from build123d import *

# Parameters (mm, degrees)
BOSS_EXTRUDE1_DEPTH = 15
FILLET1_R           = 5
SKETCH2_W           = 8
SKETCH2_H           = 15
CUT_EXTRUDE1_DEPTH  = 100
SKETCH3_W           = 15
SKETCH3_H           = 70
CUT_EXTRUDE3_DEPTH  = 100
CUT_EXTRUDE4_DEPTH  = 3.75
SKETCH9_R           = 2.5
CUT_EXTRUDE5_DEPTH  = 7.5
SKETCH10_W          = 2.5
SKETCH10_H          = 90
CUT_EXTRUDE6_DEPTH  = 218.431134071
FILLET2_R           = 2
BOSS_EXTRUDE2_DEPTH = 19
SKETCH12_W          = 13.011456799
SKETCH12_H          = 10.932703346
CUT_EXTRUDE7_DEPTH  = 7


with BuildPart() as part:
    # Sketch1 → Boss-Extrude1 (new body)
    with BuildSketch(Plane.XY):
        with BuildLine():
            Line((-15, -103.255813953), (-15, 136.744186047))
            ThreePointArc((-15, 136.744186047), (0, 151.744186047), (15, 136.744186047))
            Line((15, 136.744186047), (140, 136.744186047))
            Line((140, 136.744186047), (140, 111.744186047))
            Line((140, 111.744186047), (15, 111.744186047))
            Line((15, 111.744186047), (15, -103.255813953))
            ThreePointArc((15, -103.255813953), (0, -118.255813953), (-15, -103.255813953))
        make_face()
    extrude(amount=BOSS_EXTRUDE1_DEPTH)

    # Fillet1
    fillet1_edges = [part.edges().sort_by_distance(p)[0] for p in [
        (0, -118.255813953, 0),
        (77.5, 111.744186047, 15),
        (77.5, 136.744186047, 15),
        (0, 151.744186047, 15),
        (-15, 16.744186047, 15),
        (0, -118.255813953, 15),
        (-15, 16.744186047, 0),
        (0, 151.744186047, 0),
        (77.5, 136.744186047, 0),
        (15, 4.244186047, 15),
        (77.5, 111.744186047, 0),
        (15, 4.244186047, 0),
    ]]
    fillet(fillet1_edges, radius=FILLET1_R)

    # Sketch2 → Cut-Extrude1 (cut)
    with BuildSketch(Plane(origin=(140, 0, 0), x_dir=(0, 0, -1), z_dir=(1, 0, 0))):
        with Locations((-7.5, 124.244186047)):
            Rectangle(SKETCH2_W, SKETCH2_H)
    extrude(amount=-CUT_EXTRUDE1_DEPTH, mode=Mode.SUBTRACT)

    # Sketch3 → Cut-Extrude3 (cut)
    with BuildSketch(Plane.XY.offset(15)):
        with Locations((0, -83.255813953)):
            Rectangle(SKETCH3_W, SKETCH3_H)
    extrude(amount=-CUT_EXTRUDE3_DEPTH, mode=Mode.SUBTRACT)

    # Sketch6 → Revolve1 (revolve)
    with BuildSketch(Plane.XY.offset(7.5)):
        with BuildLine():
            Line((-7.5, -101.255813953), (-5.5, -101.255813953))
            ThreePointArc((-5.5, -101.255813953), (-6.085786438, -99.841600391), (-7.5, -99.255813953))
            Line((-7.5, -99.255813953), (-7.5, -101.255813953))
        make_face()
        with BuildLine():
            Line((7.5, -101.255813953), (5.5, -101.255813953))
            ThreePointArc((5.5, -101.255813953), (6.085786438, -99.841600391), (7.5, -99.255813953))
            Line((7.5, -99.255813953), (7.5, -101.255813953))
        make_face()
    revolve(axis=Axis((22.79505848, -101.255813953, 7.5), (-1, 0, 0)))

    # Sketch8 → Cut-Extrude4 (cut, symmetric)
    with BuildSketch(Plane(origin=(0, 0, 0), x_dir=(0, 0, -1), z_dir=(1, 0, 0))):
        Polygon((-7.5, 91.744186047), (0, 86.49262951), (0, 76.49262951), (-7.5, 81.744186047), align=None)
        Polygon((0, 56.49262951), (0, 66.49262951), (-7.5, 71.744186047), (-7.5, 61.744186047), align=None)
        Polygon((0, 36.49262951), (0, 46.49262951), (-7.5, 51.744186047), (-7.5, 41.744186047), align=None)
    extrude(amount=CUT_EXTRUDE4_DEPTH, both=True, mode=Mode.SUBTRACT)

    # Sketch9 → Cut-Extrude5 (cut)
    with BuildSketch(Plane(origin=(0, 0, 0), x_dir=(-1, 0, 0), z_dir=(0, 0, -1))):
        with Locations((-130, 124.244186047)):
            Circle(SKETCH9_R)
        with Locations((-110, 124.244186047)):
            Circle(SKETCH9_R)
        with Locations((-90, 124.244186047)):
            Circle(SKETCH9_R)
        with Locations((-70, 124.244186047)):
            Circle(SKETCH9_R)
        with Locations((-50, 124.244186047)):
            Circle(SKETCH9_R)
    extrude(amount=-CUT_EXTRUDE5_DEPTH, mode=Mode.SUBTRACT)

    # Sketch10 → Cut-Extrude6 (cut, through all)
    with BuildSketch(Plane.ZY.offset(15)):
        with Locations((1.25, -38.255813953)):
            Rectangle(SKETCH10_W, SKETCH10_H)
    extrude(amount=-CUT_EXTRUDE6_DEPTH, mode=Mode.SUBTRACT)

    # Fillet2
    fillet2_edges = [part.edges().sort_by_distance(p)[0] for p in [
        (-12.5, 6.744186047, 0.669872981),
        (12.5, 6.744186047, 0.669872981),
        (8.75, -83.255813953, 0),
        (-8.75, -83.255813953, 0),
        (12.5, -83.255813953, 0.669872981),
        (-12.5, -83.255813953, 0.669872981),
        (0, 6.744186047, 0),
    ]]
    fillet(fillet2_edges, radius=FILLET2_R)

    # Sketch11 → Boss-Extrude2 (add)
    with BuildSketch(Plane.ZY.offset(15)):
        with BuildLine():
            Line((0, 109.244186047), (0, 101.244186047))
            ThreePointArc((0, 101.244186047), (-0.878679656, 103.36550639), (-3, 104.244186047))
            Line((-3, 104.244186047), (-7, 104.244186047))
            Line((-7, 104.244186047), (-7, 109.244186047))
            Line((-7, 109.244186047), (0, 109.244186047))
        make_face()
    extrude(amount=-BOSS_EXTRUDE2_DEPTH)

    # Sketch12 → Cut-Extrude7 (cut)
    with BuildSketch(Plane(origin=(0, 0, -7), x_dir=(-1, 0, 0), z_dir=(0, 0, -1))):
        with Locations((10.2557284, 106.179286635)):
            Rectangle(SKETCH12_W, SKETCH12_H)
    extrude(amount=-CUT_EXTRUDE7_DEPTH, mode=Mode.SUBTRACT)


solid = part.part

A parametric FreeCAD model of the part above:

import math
import FreeCAD as App
import Part
import Sketcher

V = App.Vector
Q = App.Units.Quantity


def edges_at(feature, points):
    """Names of the edges that pass closest to the given points."""
    edges = feature.Shape.Edges
    near = lambda p: min(range(len(edges)), key=lambda i: edges[i].distToShape(Part.Vertex(*p))[0])
    return sorted({f"Edge{near(p) + 1}" for p in points})

doc = App.newDocument("Part")
body = doc.addObject("PartDesign::Body", "Body")

sketch1 = body.newObject("Sketcher::SketchObject", "Sketch")
sketch1.AttachmentSupport = (doc.getObject("XY_Plane"), [""])
sketch1.MapMode = "FlatFace"
sketch1.addGeometry([
    Part.LineSegment(V(-15, 137, 0), V(-15, -103, 0)),
    Part.ArcOfCircle(Part.Circle(V(0, -103, 0), V(0, 0, 1), 15), math.radians(180), math.radians(360)),
    Part.LineSegment(V(15, -103, 0), V(15, 112, 0)),
    Part.LineSegment(V(15, 112, 0), V(140, 112, 0)),
    Part.LineSegment(V(140, 112, 0), V(140, 137, 0)),
    Part.LineSegment(V(140, 137, 0), V(15, 137, 0)),
    Part.ArcOfCircle(Part.Circle(V(0, 137, 0), V(0, 0, 1), 15), math.radians(0), math.radians(180)),
], False)
sketch1.addConstraint([
    Sketcher.Constraint("Tangent", 0, 2, 1, 1),
    Sketcher.Constraint("Tangent", 1, 2, 2, 1),
    Sketcher.Constraint("Coincident", 2, 2, 3, 1),
    Sketcher.Constraint("Coincident", 3, 2, 4, 1),
    Sketcher.Constraint("Coincident", 4, 2, 5, 1),
    Sketcher.Constraint("Coincident", 5, 2, 6, 1),
    Sketcher.Constraint("Tangent", 6, 2, 0, 1),
    Sketcher.Constraint("Vertical", 0),
    Sketcher.Constraint("Vertical", 2),
    Sketcher.Constraint("Horizontal", 3),
    Sketcher.Constraint("Vertical", 4),
    Sketcher.Constraint("Horizontal", 5),
    Sketcher.Constraint("Equal", 1, 6),
    Sketcher.Constraint("Symmetric", 5, 2, 6, 2, -2),
    Sketcher.Constraint("Radius", 1, 15.0),
    Sketcher.Constraint("DistanceX", 3, 1, 3, 2, 125.0),
    Sketcher.Constraint("DistanceY", 0, 2, 0, 1, 240.0),
    Sketcher.Constraint("DistanceY", 2, 1, 2, 2, 215.0),
    Sketcher.Constraint("DistanceY", 1, 3, -1, 1, 103.255814),
])
pad1 = body.newObject("PartDesign::Pad", "Pad")
pad1.Profile = sketch1
pad1.Length = 15
doc.recompute()

fillet = body.newObject("PartDesign::Fillet", "Fillet")
fillet.Base = (pad1, edges_at(pad1, [
    (0, -118.256, 0),
    (77.5, 111.744, 15),
    (77.5, 136.744, 15),
    (0, 151.744, 15),
    (-15, 16.744, 15),
    (0, -118.256, 15),
    (-15, 16.744, 0),
    (0, 151.744, 0),
    (77.5, 136.744, 0),
    (15, 4.244, 15),
    (77.5, 111.744, 0),
    (15, 4.244, 0),
]))
fillet.Radius = 5

sketch2 = body.newObject("Sketcher::SketchObject", "Sketch001")
sketch2.AttachmentSupport = (doc.getObject("YZ_Plane"), [""])
sketch2.MapMode = "FlatFace"
sketch2.AttachmentOffset = App.Placement(V(0, 0, 140), App.Rotation())
sketch2.addGeometry([
    Part.LineSegment(V(132, 12, 0), V(117, 12, 0)),
    Part.LineSegment(V(117, 12, 0), V(117, 4, 0)),
    Part.LineSegment(V(117, 4, 0), V(132, 4, 0)),
    Part.LineSegment(V(132, 4, 0), V(132, 12, 0)),
], False)
sketch2.addConstraint([
    Sketcher.Constraint("Coincident", 0, 2, 1, 1),
    Sketcher.Constraint("Coincident", 1, 2, 2, 1),
    Sketcher.Constraint("Coincident", 2, 2, 3, 1),
    Sketcher.Constraint("Coincident", 3, 2, 0, 1),
    Sketcher.Constraint("Horizontal", 0),
    Sketcher.Constraint("Vertical", 1),
    Sketcher.Constraint("Horizontal", 2),
    Sketcher.Constraint("Vertical", 3),
    Sketcher.Constraint("DistanceX", 0, 2, 0, 1, 15.0),
    Sketcher.Constraint("DistanceY", 1, 2, 1, 1, 8.0),
    Sketcher.Constraint("DistanceY", -1, 1, 0, 2, 11.5),
    Sketcher.Constraint("DistanceX", -1, 1, 0, 2, 116.744186),
])
pocket1 = body.newObject("PartDesign::Pocket", "Pocket")
pocket1.Profile = sketch2
pocket1.Length = 100

sketch3 = body.newObject("Sketcher::SketchObject", "Sketch002")
sketch3.AttachmentSupport = (doc.getObject("XY_Plane"), [""])
sketch3.MapMode = "FlatFace"
sketch3.AttachmentOffset = App.Placement(V(0, 0, 15), App.Rotation())
sketch3.addGeometry([
    Part.LineSegment(V(-8, -48, 0), V(-8, -118, 0)),
    Part.LineSegment(V(-8, -118, 0), V(8, -118, 0)),
    Part.LineSegment(V(8, -118, 0), V(8, -48, 0)),
    Part.LineSegment(V(8, -48, 0), V(-8, -48, 0)),
], False)
sketch3.addConstraint([
    Sketcher.Constraint("Coincident", 0, 2, 1, 1),
    Sketcher.Constraint("Coincident", 1, 2, 2, 1),
    Sketcher.Constraint("Coincident", 2, 2, 3, 1),
    Sketcher.Constraint("Coincident", 3, 2, 0, 1),
    Sketcher.Constraint("Vertical", 0),
    Sketcher.Constraint("Horizontal", 1),
    Sketcher.Constraint("Vertical", 2),
    Sketcher.Constraint("Horizontal", 3),
    Sketcher.Constraint("DistanceX", 1, 1, 1, 2, 15.0),
    Sketcher.Constraint("DistanceY", 0, 2, 0, 1, 70.0),
    Sketcher.Constraint("DistanceX", 0, 2, -1, 1, 7.5),
    Sketcher.Constraint("DistanceY", 0, 2, -1, 1, 118.255814),
])
pocket2 = body.newObject("PartDesign::Pocket", "Pocket001")
pocket2.Profile = sketch3
pocket2.Length = 100

sketch4 = body.newObject("Sketcher::SketchObject", "Sketch003")
sketch4.AttachmentSupport = (doc.getObject("XY_Plane"), [""])
sketch4.MapMode = "FlatFace"
sketch4.AttachmentOffset = App.Placement(V(0, 0, 7.5), App.Rotation())
sketch4.addGeometry([
    Part.LineSegment(V(-7.5, -101.3, 0), V(-5.5, -101.3, 0)),
    Part.ArcOfCircle(Part.Circle(V(-7.5, -101.3, 0), V(0, 0, 1), 2), math.radians(0), math.radians(90)),
    Part.LineSegment(V(-7.5, -99.3, 0), V(-7.5, -101.3, 0)),
    Part.LineSegment(V(5.5, -101.3, 0), V(7.5, -101.3, 0)),
    Part.LineSegment(V(7.5, -101.3, 0), V(7.5, -99.3, 0)),
    Part.ArcOfCircle(Part.Circle(V(7.5, -101.3, 0), V(0, 0, 1), 2), math.radians(90), math.radians(180)),
], False)
sketch4.addGeometry(Part.LineSegment(V(7.5, -101.3, 0), V(-7.5, -101.3, 0)), True)
sketch4.addConstraint([
    Sketcher.Constraint("Coincident", 0, 2, 1, 1),
    Sketcher.Constraint("Coincident", 1, 2, 2, 1),
    Sketcher.Constraint("Coincident", 2, 2, 0, 1),
    Sketcher.Constraint("Coincident", 3, 2, 4, 1),
    Sketcher.Constraint("Coincident", 4, 2, 5, 1),
    Sketcher.Constraint("Coincident", 5, 2, 3, 1),
    Sketcher.Constraint("Horizontal", 0),
    Sketcher.Constraint("Vertical", 2),
    Sketcher.Constraint("Horizontal", 3),
    Sketcher.Constraint("Vertical", 4),
    Sketcher.Constraint("Horizontal", 6),
    Sketcher.Constraint("Coincident", 2, 2, 1, 3),
    Sketcher.Constraint("Coincident", 3, 2, 5, 3),
    Sketcher.Constraint("Coincident", 6, 1, 5, 3),
    Sketcher.Constraint("Coincident", 6, 2, 1, 3),
    Sketcher.Constraint("Equal", 1, 5),
    Sketcher.Constraint("Radius", 1, 2.0),
    Sketcher.Constraint("DistanceX", 6, 2, 6, 1, 15.0),
    Sketcher.Constraint("DistanceX", 1, 3, -1, 1, 7.5),
    Sketcher.Constraint("DistanceY", 1, 3, -1, 1, 101.255814),
])
revolution = body.newObject("PartDesign::Revolution", "Revolution")
revolution.Profile = sketch4
revolution.ReferenceAxis = (sketch4, ["Axis0"])
revolution.Angle = 360

sketch5 = body.newObject("Sketcher::SketchObject", "Sketch004")
sketch5.AttachmentSupport = (doc.getObject("YZ_Plane"), [""])
sketch5.MapMode = "FlatFace"
sketch5.addGeometry([
    Part.LineSegment(V(86, 0, 0), V(92, 8, 0)),
    Part.LineSegment(V(92, 8, 0), V(82, 8, 0)),
    Part.LineSegment(V(82, 8, 0), V(76, 0, 0)),
    Part.LineSegment(V(76, 0, 0), V(86, 0, 0)),
    Part.LineSegment(V(56, 0, 0), V(66, 0, 0)),
    Part.LineSegment(V(66, 0, 0), V(72, 8, 0)),
    Part.LineSegment(V(72, 8, 0), V(62, 8, 0)),
    Part.LineSegment(V(62, 8, 0), V(56, 0, 0)),
    Part.LineSegment(V(36, 0, 0), V(46, 0, 0)),
    Part.LineSegment(V(46, 0, 0), V(52, 8, 0)),
    Part.LineSegment(V(52, 8, 0), V(42, 8, 0)),
    Part.LineSegment(V(42, 8, 0), V(36, 0, 0)),
], False)
sketch5.addConstraint([
    Sketcher.Constraint("Coincident", 0, 2, 1, 1),
    Sketcher.Constraint("Coincident", 1, 2, 2, 1),
    Sketcher.Constraint("Coincident", 2, 2, 3, 1),
    Sketcher.Constraint("Coincident", 3, 2, 0, 1),
    Sketcher.Constraint("Coincident", 4, 2, 5, 1),
    Sketcher.Constraint("Coincident", 5, 2, 6, 1),
    Sketcher.Constraint("Coincident", 6, 2, 7, 1),
    Sketcher.Constraint("Coincident", 7, 2, 4, 1),
    Sketcher.Constraint("Coincident", 8, 2, 9, 1),
    Sketcher.Constraint("Coincident", 9, 2, 10, 1),
    Sketcher.Constraint("Coincident", 10, 2, 11, 1),
    Sketcher.Constraint("Coincident", 11, 2, 8, 1),
    Sketcher.Constraint("Horizontal", 1),
    Sketcher.Constraint("Horizontal", 3),
    Sketcher.Constraint("Horizontal", 4),
    Sketcher.Constraint("Horizontal", 6),
    Sketcher.Constraint("Horizontal", 8),
    Sketcher.Constraint("Horizontal", 10),
    Sketcher.Constraint("PointOnObject", 2, 2, -1),
    Sketcher.Constraint("PointOnObject", 4, 2, -1),
    Sketcher.Constraint("PointOnObject", 8, 2, -1),
    Sketcher.Constraint("Parallel", 0, 2),
    Sketcher.Constraint("Parallel", 2, 5),
    Sketcher.Constraint("Parallel", 5, 7),
    Sketcher.Constraint("Parallel", 7, 9),
    Sketcher.Constraint("Parallel", 9, 11),
    Sketcher.Constraint("Horizontal", 1, 2, 5, 2),
    Sketcher.Constraint("Horizontal", 6, 2, 9, 2),
    Sketcher.Constraint("Equal", 3, 4),
    Sketcher.Constraint("Equal", 6, 8),
    Sketcher.Constraint("DistanceX", 1, 2, 1, 1, 10.0),
    Sketcher.Constraint("Angle", 0, Q("55 deg")),
    Sketcher.Constraint("DistanceX", 4, 2, 2, 2, 10.0),
    Sketcher.Constraint("DistanceX", 8, 2, 7, 2, 10.0),
    Sketcher.Constraint("DistanceY", -1, 1, 0, 2, 7.5),
    Sketcher.Constraint("DistanceX", -1, 1, 2, 2, 76.49263),
])
pocket3 = body.newObject("PartDesign::Pocket", "Pocket002")
pocket3.Profile = sketch5
pocket3.Length = 7.5
pocket3.Midplane = True

sketch6 = body.newObject("Sketcher::SketchObject", "Sketch005")
sketch6.AttachmentSupport = (doc.getObject("XY_Plane"), [""])
sketch6.MapMode = "FlatFace"
sketch6.addGeometry([
    Part.Circle(V(130, 124.2, 0), V(0, 0, 1), 2.5),
    Part.Circle(V(110, 124.2, 0), V(0, 0, 1), 2.5),
    Part.Circle(V(90, 124.2, 0), V(0, 0, 1), 2.5),
    Part.Circle(V(70, 124.2, 0), V(0, 0, 1), 2.5),
    Part.Circle(V(50, 124.2, 0), V(0, 0, 1), 2.5),
], False)
sketch6.addConstraint([
    Sketcher.Constraint("Equal", 0, 1),
    Sketcher.Constraint("Equal", 1, 2),
    Sketcher.Constraint("Equal", 2, 3),
    Sketcher.Constraint("Equal", 3, 4),
    Sketcher.Constraint("Horizontal", 0, 3, 1, 3),
    Sketcher.Constraint("Horizontal", 1, 3, 2, 3),
    Sketcher.Constraint("Horizontal", 2, 3, 3, 3),
    Sketcher.Constraint("Horizontal", 3, 3, 4, 3),
    Sketcher.Constraint("Diameter", 0, 5.0),
    Sketcher.Constraint("DistanceX", -1, 1, 0, 3, 130.0),
    Sketcher.Constraint("DistanceX", -1, 1, 1, 3, 110.0),
    Sketcher.Constraint("DistanceX", -1, 1, 2, 3, 90.0),
    Sketcher.Constraint("DistanceX", -1, 1, 3, 3, 70.0),
    Sketcher.Constraint("DistanceX", -1, 1, 4, 3, 50.0),
    Sketcher.Constraint("DistanceY", -1, 1, 0, 3, 124.244186),
])
pocket4 = body.newObject("PartDesign::Pocket", "Pocket003")
pocket4.Profile = sketch6
pocket4.Length = 7.5
pocket4.Reversed = True

sketch7 = body.newObject("Sketcher::SketchObject", "Sketch006")
sketch7.AttachmentSupport = (doc.getObject("YZ_Plane"), [""])
sketch7.MapMode = "FlatFace"
sketch7.AttachmentOffset = App.Placement(V(0, 0, -15), App.Rotation())
sketch7.addGeometry([
    Part.LineSegment(V(6.7, 0, 0), V(-83.3, 0, 0)),
    Part.LineSegment(V(-83.3, 0, 0), V(-83.3, 2.5, 0)),
    Part.LineSegment(V(-83.3, 2.5, 0), V(6.7, 2.5, 0)),
    Part.LineSegment(V(6.7, 2.5, 0), V(6.7, 0, 0)),
], False)
sketch7.addConstraint([
    Sketcher.Constraint("Coincident", 0, 2, 1, 1),
    Sketcher.Constraint("Coincident", 1, 2, 2, 1),
    Sketcher.Constraint("Coincident", 2, 2, 3, 1),
    Sketcher.Constraint("Coincident", 3, 2, 0, 1),
    Sketcher.Constraint("Horizontal", 0),
    Sketcher.Constraint("Vertical", 1),
    Sketcher.Constraint("Horizontal", 2),
    Sketcher.Constraint("Vertical", 3),
    Sketcher.Constraint("PointOnObject", 0, 2, -1),
    Sketcher.Constraint("DistanceX", 0, 2, 0, 1, 90.0),
    Sketcher.Constraint("DistanceY", 1, 1, 1, 2, 2.5),
    Sketcher.Constraint("DistanceX", 0, 2, -1, 1, 83.255814),
])
pocket5 = body.newObject("PartDesign::Pocket", "Pocket004")
pocket5.Profile = sketch7
pocket5.Type = "ThroughAll"
pocket5.Reversed = True
doc.recompute()

fillet2 = body.newObject("PartDesign::Fillet", "Fillet001")
fillet2.Base = (pocket5, edges_at(pocket5, [
    (-12.5, 6.744, 0.67),
    (12.5, 6.744, 0.67),
    (8.75, -83.256, 0),
    (-8.75, -83.256, 0),
    (12.5, -83.256, 0.67),
    (-12.5, -83.256, 0.67),
    (0, 6.744, 0),
]))
fillet2.Radius = 2

sketch8 = body.newObject("Sketcher::SketchObject", "Sketch007")
sketch8.AttachmentSupport = (doc.getObject("YZ_Plane"), [""])
sketch8.MapMode = "FlatFace"
sketch8.AttachmentOffset = App.Placement(V(0, 0, -15), App.Rotation())
sketch8.addGeometry([
    Part.LineSegment(V(101.2, 0, 0), V(109.2, 0, 0)),
    Part.LineSegment(V(109.2, 0, 0), V(109.2, -7, 0)),
    Part.LineSegment(V(109.2, -7, 0), V(104.2, -7, 0)),
    Part.LineSegment(V(104.2, -7, 0), V(104.2, -3, 0)),
    Part.ArcOfCircle(Part.Circle(V(101.2, -3, 0), V(0, 0, 1), 3), math.radians(0), math.radians(90)),
], False)
sketch8.addConstraint([
    Sketcher.Constraint("Coincident", 0, 2, 1, 1),
    Sketcher.Constraint("Coincident", 1, 2, 2, 1),
    Sketcher.Constraint("Coincident", 2, 2, 3, 1),
    Sketcher.Constraint("Tangent", 3, 2, 4, 1),
    Sketcher.Constraint("Tangent", 4, 2, 0, 1),
    Sketcher.Constraint("Horizontal", 0),
    Sketcher.Constraint("Vertical", 1),
    Sketcher.Constraint("Horizontal", 2),
    Sketcher.Constraint("Vertical", 3),
    Sketcher.Constraint("PointOnObject", 0, 2, -1),
    Sketcher.Constraint("Radius", 4, 3.0),
    Sketcher.Constraint("DistanceX", 0, 1, 0, 2, 8.0),
    Sketcher.Constraint("DistanceY", 1, 2, 1, 1, 7.0),
    Sketcher.Constraint("DistanceX", -1, 1, 4, 3, 101.244186),
])
pad2 = body.newObject("PartDesign::Pad", "Pad001")
pad2.Profile = sketch8
pad2.Length = 19

sketch9 = body.newObject("Sketcher::SketchObject", "Sketch008")
sketch9.AttachmentSupport = (doc.getObject("XY_Plane"), [""])
sketch9.MapMode = "FlatFace"
sketch9.AttachmentOffset = App.Placement(V(0, 0, -7), App.Rotation())
sketch9.addGeometry([
    Part.LineSegment(V(-4, 112, 0), V(-4, 101, 0)),
    Part.LineSegment(V(-4, 101, 0), V(-17, 101, 0)),
    Part.LineSegment(V(-17, 101, 0), V(-17, 112, 0)),
    Part.LineSegment(V(-17, 112, 0), V(-4, 112, 0)),
], False)
sketch9.addConstraint([
    Sketcher.Constraint("Coincident", 0, 2, 1, 1),
    Sketcher.Constraint("Coincident", 1, 2, 2, 1),
    Sketcher.Constraint("Coincident", 2, 2, 3, 1),
    Sketcher.Constraint("Coincident", 3, 2, 0, 1),
    Sketcher.Constraint("Vertical", 0),
    Sketcher.Constraint("Horizontal", 1),
    Sketcher.Constraint("Vertical", 2),
    Sketcher.Constraint("Horizontal", 3),
    Sketcher.Constraint("DistanceX", 0, 2, -1, 1, 3.75),
    Sketcher.Constraint("DistanceX", 1, 2, 1, 1, 13.011457),
    Sketcher.Constraint("DistanceY", 0, 2, 0, 1, 10.932703),
    Sketcher.Constraint("DistanceY", -1, 1, 2, 2, 111.645638),
])
pocket6 = body.newObject("PartDesign::Pocket", "Pocket005")
pocket6.Profile = sketch9
pocket6.Length = 7
pocket6.Reversed = True

doc.recompute()
